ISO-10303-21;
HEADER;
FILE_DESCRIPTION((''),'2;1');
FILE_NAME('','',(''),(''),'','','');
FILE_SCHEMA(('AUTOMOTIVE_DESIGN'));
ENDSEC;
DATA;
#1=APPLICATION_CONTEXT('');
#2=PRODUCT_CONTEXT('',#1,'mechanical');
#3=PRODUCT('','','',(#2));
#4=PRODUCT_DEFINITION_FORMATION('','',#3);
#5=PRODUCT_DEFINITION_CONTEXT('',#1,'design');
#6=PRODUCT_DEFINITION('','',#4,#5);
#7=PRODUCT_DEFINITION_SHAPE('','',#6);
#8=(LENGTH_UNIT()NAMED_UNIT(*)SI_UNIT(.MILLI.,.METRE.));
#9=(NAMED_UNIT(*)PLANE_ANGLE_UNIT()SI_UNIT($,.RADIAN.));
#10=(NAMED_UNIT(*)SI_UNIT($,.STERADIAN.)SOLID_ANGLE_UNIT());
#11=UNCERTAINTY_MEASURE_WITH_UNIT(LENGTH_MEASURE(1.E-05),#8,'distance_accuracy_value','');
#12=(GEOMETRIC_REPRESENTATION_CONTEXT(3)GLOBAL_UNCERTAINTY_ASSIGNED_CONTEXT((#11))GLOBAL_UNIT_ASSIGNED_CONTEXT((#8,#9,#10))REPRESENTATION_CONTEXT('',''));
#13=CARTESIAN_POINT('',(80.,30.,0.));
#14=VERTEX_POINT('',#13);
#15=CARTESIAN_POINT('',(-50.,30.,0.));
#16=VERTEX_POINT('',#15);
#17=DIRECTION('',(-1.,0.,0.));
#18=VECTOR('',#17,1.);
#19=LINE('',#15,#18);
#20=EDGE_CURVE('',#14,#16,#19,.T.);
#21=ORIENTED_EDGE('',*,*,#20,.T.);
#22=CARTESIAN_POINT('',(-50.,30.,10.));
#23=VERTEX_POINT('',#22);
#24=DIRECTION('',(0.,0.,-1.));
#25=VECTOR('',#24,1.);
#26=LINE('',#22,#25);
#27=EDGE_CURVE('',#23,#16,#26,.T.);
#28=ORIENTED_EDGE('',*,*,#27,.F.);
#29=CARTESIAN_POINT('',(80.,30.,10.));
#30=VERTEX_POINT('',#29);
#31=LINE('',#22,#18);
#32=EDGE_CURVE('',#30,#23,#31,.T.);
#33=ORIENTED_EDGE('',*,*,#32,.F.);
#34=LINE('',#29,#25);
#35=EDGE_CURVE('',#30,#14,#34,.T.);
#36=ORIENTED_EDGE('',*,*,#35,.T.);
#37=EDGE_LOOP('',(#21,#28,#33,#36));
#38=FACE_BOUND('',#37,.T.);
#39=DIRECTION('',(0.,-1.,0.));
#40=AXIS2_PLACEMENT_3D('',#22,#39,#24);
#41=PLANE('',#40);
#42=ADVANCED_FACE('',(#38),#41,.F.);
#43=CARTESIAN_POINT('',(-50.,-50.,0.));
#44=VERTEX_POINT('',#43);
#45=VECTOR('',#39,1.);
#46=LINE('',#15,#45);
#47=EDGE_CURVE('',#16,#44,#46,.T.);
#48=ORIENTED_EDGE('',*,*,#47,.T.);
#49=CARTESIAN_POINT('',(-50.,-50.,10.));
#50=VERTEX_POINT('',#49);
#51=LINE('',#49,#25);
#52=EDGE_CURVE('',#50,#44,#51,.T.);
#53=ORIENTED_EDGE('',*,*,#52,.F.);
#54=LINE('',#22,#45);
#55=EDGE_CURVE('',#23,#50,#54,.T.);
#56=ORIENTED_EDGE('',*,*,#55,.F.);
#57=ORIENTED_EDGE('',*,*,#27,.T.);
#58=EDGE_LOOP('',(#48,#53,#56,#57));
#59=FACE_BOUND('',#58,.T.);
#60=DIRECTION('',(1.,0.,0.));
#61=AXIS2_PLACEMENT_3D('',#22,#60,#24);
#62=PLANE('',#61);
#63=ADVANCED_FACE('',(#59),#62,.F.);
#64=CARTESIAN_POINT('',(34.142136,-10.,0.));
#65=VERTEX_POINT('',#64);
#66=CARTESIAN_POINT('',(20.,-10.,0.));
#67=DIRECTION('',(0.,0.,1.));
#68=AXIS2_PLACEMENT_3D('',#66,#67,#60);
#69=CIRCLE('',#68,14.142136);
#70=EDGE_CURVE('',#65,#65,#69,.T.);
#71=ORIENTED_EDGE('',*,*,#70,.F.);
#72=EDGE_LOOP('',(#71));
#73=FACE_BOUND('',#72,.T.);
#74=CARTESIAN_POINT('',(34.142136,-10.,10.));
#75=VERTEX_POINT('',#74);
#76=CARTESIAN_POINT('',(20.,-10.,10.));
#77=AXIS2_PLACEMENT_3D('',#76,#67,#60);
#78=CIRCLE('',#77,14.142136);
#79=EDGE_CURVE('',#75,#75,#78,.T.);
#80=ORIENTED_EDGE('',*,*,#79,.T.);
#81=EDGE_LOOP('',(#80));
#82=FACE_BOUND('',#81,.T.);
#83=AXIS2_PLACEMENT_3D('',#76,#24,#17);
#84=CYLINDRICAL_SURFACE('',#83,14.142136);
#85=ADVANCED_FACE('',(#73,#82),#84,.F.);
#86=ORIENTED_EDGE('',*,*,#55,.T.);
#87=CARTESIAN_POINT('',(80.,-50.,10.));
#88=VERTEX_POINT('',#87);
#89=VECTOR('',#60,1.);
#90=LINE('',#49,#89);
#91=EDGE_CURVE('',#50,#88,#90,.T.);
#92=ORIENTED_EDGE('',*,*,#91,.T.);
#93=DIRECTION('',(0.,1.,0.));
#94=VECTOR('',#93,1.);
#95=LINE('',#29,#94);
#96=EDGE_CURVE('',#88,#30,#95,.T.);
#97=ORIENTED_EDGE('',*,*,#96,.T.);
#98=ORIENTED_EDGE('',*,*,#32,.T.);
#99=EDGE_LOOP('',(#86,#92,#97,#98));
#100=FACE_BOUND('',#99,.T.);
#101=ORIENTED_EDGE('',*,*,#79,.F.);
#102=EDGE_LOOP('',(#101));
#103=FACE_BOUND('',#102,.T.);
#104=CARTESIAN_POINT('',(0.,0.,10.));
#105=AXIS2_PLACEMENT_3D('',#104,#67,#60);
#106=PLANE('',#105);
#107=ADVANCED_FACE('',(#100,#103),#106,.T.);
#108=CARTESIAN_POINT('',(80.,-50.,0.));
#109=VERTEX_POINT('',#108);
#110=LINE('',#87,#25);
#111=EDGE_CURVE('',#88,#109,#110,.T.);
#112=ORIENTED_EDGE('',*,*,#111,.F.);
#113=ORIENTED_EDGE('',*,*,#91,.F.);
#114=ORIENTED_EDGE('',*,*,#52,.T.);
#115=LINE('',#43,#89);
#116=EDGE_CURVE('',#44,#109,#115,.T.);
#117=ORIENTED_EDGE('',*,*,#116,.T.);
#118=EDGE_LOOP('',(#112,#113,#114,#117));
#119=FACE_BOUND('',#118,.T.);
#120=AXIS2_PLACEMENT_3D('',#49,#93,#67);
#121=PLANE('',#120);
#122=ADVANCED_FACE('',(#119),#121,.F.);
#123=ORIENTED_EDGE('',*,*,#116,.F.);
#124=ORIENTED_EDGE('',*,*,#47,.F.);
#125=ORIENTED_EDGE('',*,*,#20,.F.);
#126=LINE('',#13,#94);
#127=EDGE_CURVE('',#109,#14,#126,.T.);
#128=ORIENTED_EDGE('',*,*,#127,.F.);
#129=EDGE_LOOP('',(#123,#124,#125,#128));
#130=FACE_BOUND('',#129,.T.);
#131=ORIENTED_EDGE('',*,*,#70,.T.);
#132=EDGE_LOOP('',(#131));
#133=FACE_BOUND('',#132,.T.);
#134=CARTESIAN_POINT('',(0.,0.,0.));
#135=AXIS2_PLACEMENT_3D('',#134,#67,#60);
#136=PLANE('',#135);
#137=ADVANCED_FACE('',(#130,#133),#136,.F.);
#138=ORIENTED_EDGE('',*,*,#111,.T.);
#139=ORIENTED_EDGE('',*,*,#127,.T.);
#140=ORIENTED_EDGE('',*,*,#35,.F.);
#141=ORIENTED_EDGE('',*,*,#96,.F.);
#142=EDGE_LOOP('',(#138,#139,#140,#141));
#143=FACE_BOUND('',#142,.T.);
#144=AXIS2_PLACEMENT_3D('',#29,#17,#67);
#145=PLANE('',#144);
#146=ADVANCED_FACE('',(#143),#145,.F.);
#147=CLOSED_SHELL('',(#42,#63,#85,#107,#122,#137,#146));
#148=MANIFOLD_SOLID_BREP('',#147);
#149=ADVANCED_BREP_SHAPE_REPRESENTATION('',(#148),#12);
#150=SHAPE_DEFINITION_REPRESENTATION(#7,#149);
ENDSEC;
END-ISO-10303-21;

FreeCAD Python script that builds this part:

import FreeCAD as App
import Part
import Sketcher
from FreeCAD import Vector

doc = App.newDocument("Part")
params = doc.addObject("Spreadsheet::Sheet", "Params")
for row, (alias, value) in enumerate([
    ("sketch1_width", "130 mm"),
    ("sketch1_height", "80 mm"),
    ("pad1_length", "10 mm"),
], start=1):
    params.set(f"A{row}", alias)
    params.set(f"B{row}", "=" + value)
    params.setAlias(f"B{row}", alias)

body = doc.addObject("PartDesign::Body", "Body")

# Sketch on XY plane
sketch1 = body.newObject("Sketcher::SketchObject", "Sketch")
sketch1.AttachmentSupport = (doc.getObject("XY_Plane"), [""])
sketch1.MapMode = "FlatFace"
sketch1.addGeometry([
    Part.LineSegment(Vector(-50, 30, 0), Vector(-50, -50, 0)),  # 0
    Part.LineSegment(Vector(-50, -50, 0), Vector(80, -50, 0)),  # 1
    Part.LineSegment(Vector(80, -50, 0), Vector(80, 30, 0)),  # 2
    Part.LineSegment(Vector(80, 30, 0), Vector(-50, 30, 0)),  # 3
    Part.Circle(Vector(20, -10, 0), Vector(0, 0, 1), 14.142136),  # 4
], False)
sketch1.addConstraint([
    Sketcher.Constraint("Coincident", 0, 2, 1, 1),
    Sketcher.Constraint("Coincident", 1, 2, 2, 1),
    Sketcher.Constraint("Coincident", 2, 2, 3, 1),
    Sketcher.Constraint("Coincident", 3, 2, 0, 1),
    Sketcher.Constraint("Vertical", 0),
    Sketcher.Constraint("Horizontal", 1),
    Sketcher.Constraint("Vertical", 2),
    Sketcher.Constraint("Horizontal", 3),
    Sketcher.Constraint("DistanceX", 1, 1, 1, 2, 130.0),
    Sketcher.Constraint("DistanceY", 0, 2, 0, 1, 80.0),
    Sketcher.Constraint("DistanceX", -1, 1, 4, 3, 20.0),
    Sketcher.Constraint("DistanceY", 4, 3, -1, 1, 10.0),
    Sketcher.Constraint("DistanceX", 0, 2, -1, 1, 50.0),
    Sketcher.Constraint("DistanceY", 0, 2, -1, 1, 50.0),
    Sketcher.Constraint("Diameter", 4, 28.284271),
])
sketch1.setExpression("Constraints[8]", "Params.sketch1_width")
sketch1.setExpression("Constraints[9]", "Params.sketch1_height")
pad1 = body.newObject("PartDesign::Pad", "Pad")
pad1.Profile = sketch1
pad1.setExpression("Length", "Params.pad1_length")

doc.recompute()
